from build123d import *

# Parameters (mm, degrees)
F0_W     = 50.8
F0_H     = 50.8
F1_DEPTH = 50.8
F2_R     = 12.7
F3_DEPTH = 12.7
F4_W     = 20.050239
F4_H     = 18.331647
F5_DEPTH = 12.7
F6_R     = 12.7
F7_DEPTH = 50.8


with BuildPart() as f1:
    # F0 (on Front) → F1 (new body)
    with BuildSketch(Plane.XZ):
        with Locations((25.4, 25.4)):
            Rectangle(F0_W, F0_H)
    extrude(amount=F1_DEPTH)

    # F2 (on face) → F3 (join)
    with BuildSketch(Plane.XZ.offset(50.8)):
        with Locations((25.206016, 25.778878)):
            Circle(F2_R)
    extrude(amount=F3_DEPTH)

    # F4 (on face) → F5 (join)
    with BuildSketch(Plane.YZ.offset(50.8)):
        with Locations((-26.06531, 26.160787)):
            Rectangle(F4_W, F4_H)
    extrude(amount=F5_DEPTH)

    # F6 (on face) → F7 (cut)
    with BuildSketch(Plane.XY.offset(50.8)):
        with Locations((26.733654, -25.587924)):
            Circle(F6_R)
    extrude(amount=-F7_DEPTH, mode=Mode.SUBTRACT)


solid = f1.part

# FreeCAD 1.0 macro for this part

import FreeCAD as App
import Part
import Sketcher
from FreeCAD import Vector
Q = App.Units.Quantity

doc = App.newDocument("Part")
body = doc.addObject("PartDesign::Body", "Body")

sketch1 = body.newObject("Sketcher::SketchObject", "Sketch")
sketch1.AttachmentSupport = (doc.getObject("XZ_Plane"), [""])
sketch1.MapMode = "FlatFace"
sketch1.addGeometry(Part.LineSegment(Vector(0, 50.8, 0), Vector(0, 0, 0)), False)
sketch1.addGeometry(Part.LineSegment(Vector(0, 0, 0), Vector(50.8, 0, 0)), False)
sketch1.addGeometry(Part.LineSegment(Vector(50.8, 0, 0), Vector(50.8, 50.8, 0)), False)
sketch1.addGeometry(Part.LineSegment(Vector(50.8, 50.8, 0), Vector(0, 50.8, 0)), False)
sketch1.addConstraint(Sketcher.Constraint("Coincident", 0, 2, 1, 1))
sketch1.addConstraint(Sketcher.Constraint("Coincident", 1, 2, 2, 1))
sketch1.addConstraint(Sketcher.Constraint("Coincident", 2, 2, 3, 1))
sketch1.addConstraint(Sketcher.Constraint("Coincident", 3, 2, 0, 1))
sketch1.addConstraint(Sketcher.Constraint("Vertical", 0))
sketch1.addConstraint(Sketcher.Constraint("Horizontal", 1))
sketch1.addConstraint(Sketcher.Constraint("Vertical", 2))
sketch1.addConstraint(Sketcher.Constraint("Horizontal", 3))
sketch1.addConstraint(Sketcher.Constraint("Coincident", 0, 2, -1, 1))
sketch1.addConstraint(Sketcher.Constraint("Equal", 3, 0))
sketch1.addConstraint(Sketcher.Constraint("DistanceX", 1, 1, 1, 2, Q("2 in")))
pad1 = body.newObject("PartDesign::Pad", "Pad")
pad1.Profile = sketch1
pad1.Length = Q("2 in")

sketch2 = body.newObject("Sketcher::SketchObject", "Sketch001")
sketch2.AttachmentSupport = (doc.getObject("XZ_Plane"), [""])
sketch2.MapMode = "FlatFace"
sketch2.AttachmentOffset = App.Placement(Vector(0, 0, 2 * 25.4), App.Rotation())
sketch2.addGeometry(Part.Circle(Vector(25.206016, 25.778878, 0), Vector(0, 0, 1), 12.7), False)
sketch2.addConstraint(Sketcher.Constraint("Diameter", 0, Q("1 in")))
sketch2.addConstraint(Sketcher.Constraint("DistanceX", -1, 1, 0, 3, Q("25.206016 mm")))
sketch2.addConstraint(Sketcher.Constraint("DistanceY", -1, 1, 0, 3, Q("25.778878 mm")))
pad2 = body.newObject("PartDesign::Pad", "Pad001")
pad2.Profile = sketch2
pad2.Length = Q("0.5 in")

sketch3 = body.newObject("Sketcher::SketchObject", "Sketch002")
sketch3.AttachmentSupport = (doc.getObject("YZ_Plane"), [""])
sketch3.MapMode = "FlatFace"
sketch3.AttachmentOffset = App.Placement(Vector(0, 0, 2 * 25.4), App.Rotation())
sketch3.addGeometry(Part.LineSegment(Vector(-36.090429, 35.326611, 0), Vector(-36.090429, 16.994964, 0)), False)
sketch3.addGeometry(Part.LineSegment(Vector(-36.090429, 16.994964, 0), Vector(-16.040191, 16.994964, 0)), False)
sketch3.addGeometry(Part.LineSegment(Vector(-16.040191, 16.994964, 0), Vector(-16.040191, 35.326611, 0)), False)
sketch3.addGeometry(Part.LineSegment(Vector(-16.040191, 35.326611, 0), Vector(-36.090429, 35.326611, 0)), False)
sketch3.addConstraint(Sketcher.Constraint("Coincident", 0, 2, 1, 1))
sketch3.addConstraint(Sketcher.Constraint("Coincident", 1, 2, 2, 1))
sketch3.addConstraint(Sketcher.Constraint("Coincident", 2, 2, 3, 1))
sketch3.addConstraint(Sketcher.Constraint("Coincident", 3, 2, 0, 1))
sketch3.addConstraint(Sketcher.Constraint("Vertical", 0))
sketch3.addConstraint(Sketcher.Constraint("Horizontal", 1))
sketch3.addConstraint(Sketcher.Constraint("Vertical", 2))
sketch3.addConstraint(Sketcher.Constraint("Horizontal", 3))
sketch3.addConstraint(Sketcher.Constraint("DistanceX", 1, 1, 1, 2, Q("20.050239 mm")))
sketch3.addConstraint(Sketcher.Constraint("DistanceY", 0, 2, 0, 1, Q("18.331647 mm")))
sketch3.addConstraint(Sketcher.Constraint("DistanceX", 0, 2, -1, 1, Q("36.090429 mm")))
sketch3.addConstraint(Sketcher.Constraint("DistanceY", -1, 1, 2, 2, Q("35.326611 mm")))
pad3 = body.newObject("PartDesign::Pad", "Pad002")
pad3.Profile = sketch3
pad3.Length = Q("0.5 in")

sketch4 = body.newObject("Sketcher::SketchObject", "Sketch003")
sketch4.AttachmentSupport = (doc.getObject("XY_Plane"), [""])
sketch4.MapMode = "FlatFace"
sketch4.AttachmentOffset = App.Placement(Vector(0, 0, 2 * 25.4), App.Rotation())
sketch4.addGeometry(Part.Circle(Vector(26.733654, -25.587924, 0), Vector(0, 0, 1), 12.7), False)
sketch4.addConstraint(Sketcher.Constraint("Diameter", 0, Q("1 in")))
sketch4.addConstraint(Sketcher.Constraint("DistanceX", -1, 1, 0, 3, Q("26.733654 mm")))
sketch4.addConstraint(Sketcher.Constraint("DistanceY", 0, 3, -1, 1, Q("25.587924 mm")))
pocket1 = body.newObject("PartDesign::Pocket", "Pocket")
pocket1.Profile = sketch4
pocket1.Length = Q("2 in")

doc.recompute()
